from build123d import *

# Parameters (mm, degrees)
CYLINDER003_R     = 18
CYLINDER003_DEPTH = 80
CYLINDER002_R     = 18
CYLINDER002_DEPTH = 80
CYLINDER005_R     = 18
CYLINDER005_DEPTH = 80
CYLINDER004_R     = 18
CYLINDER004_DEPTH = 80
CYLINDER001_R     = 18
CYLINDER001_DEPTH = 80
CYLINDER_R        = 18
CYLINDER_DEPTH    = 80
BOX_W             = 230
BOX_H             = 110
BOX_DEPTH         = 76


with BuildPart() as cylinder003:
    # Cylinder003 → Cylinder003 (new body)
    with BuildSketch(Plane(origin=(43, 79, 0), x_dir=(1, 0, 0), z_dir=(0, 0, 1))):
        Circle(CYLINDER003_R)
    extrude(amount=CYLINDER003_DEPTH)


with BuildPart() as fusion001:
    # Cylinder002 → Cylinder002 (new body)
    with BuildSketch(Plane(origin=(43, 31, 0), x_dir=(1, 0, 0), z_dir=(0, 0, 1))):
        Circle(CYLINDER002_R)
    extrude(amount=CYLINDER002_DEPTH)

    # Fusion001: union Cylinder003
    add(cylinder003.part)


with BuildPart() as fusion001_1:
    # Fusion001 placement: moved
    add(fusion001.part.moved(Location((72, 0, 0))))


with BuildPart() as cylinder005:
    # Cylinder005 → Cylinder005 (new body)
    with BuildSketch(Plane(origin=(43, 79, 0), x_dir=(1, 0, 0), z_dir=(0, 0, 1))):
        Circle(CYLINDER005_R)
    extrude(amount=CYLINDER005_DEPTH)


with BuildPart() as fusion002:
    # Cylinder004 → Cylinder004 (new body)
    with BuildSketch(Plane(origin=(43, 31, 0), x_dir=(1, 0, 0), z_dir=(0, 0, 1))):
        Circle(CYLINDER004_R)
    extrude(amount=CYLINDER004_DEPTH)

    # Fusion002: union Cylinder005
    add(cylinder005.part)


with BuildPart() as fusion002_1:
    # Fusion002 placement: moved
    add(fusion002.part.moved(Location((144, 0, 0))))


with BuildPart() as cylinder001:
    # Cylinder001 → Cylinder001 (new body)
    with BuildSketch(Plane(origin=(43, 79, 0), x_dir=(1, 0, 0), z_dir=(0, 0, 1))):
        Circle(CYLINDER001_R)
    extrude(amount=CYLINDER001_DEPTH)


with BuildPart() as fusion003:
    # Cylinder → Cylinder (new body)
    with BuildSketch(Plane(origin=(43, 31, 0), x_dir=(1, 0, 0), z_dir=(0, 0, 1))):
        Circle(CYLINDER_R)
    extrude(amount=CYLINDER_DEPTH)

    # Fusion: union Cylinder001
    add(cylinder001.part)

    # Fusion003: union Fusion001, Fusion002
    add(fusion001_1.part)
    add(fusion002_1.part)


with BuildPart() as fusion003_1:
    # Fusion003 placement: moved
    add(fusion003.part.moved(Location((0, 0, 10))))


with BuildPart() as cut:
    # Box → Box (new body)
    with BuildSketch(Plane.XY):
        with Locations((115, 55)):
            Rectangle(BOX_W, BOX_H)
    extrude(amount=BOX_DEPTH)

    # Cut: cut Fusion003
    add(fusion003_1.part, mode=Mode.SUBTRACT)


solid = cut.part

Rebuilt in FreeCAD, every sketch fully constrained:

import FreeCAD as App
import Part
import Sketcher
from FreeCAD import Vector
Q = App.Units.Quantity

doc = App.newDocument("Part")
body = doc.addObject("PartDesign::Body", "Body")

sketch1 = body.newObject("Sketcher::SketchObject", "Sketch")
sketch1.AttachmentSupport = (doc.getObject("XY_Plane"), [""])
sketch1.MapMode = "FlatFace"
sketch1.addGeometry(Part.Circle(Vector(43, 79, 0), Vector(0, 0, 1), 18), False)
sketch1.addConstraint([
    Sketcher.Constraint("Diameter", 0, Q("36 mm")),
    Sketcher.Constraint("DistanceX", -1, 1, 0, 3, Q("43 mm")),
    Sketcher.Constraint("DistanceY", -1, 1, 0, 3, Q("79 mm")),
])
pad1 = body.newObject("PartDesign::Pad", "Pad")
pad1.Profile = sketch1
pad1.Length = 80
body2 = doc.addObject("PartDesign::Body", "Body001")
body2.AllowCompound = True

sketch2 = body2.newObject("Sketcher::SketchObject", "Sketch001")
sketch2.AttachmentSupport = (doc.getObject("XY_Plane001"), [""])
sketch2.MapMode = "FlatFace"
sketch2.addGeometry(Part.Circle(Vector(43, 31, 0), Vector(0, 0, 1), 18), False)
sketch2.addConstraint([
    Sketcher.Constraint("Diameter", 0, Q("36 mm")),
    Sketcher.Constraint("DistanceX", -1, 1, 0, 3, Q("43 mm")),
    Sketcher.Constraint("DistanceY", -1, 1, 0, 3, Q("31 mm")),
])
pad2 = body2.newObject("PartDesign::Pad", "Pad001")
pad2.Profile = sketch2
pad2.Length = 80
doc.recompute()

boolean = body2.newObject("PartDesign::Boolean", "Boolean")
boolean.Type = "Fuse"
boolean.addObjects([body])
body3 = doc.addObject("PartDesign::Body", "Body002")
body3.AllowCompound = True
doc.recompute()

body2.Placement = App.Placement(Vector(72, 0, 0), App.Rotation(Vector(0, 0, 1), 0))
boolean2 = body3.newObject("PartDesign::Boolean", "Boolean001")
boolean2.Type = "Fuse"
boolean2.addObjects([body2])
body4 = doc.addObject("PartDesign::Body", "Body003")

sketch3 = body4.newObject("Sketcher::SketchObject", "Sketch002")
sketch3.AttachmentSupport = (doc.getObject("XY_Plane003"), [""])
sketch3.MapMode = "FlatFace"
sketch3.addGeometry(Part.Circle(Vector(43, 79, 0), Vector(0, 0, 1), 18), False)
sketch3.addConstraint([
    Sketcher.Constraint("Diameter", 0, Q("36 mm")),
    Sketcher.Constraint("DistanceX", -1, 1, 0, 3, Q("43 mm")),
    Sketcher.Constraint("DistanceY", -1, 1, 0, 3, Q("79 mm")),
])
pad3 = body4.newObject("PartDesign::Pad", "Pad002")
pad3.Profile = sketch3
pad3.Length = 80
body5 = doc.addObject("PartDesign::Body", "Body004")
body5.AllowCompound = True

sketch4 = body5.newObject("Sketcher::SketchObject", "Sketch003")
sketch4.AttachmentSupport = (doc.getObject("XY_Plane004"), [""])
sketch4.MapMode = "FlatFace"
sketch4.addGeometry(Part.Circle(Vector(43, 31, 0), Vector(0, 0, 1), 18), False)
sketch4.addConstraint([
    Sketcher.Constraint("Diameter", 0, Q("36 mm")),
    Sketcher.Constraint("DistanceX", -1, 1, 0, 3, Q("43 mm")),
    Sketcher.Constraint("DistanceY", -1, 1, 0, 3, Q("31 mm")),
])
pad4 = body5.newObject("PartDesign::Pad", "Pad003")
pad4.Profile = sketch4
pad4.Length = 80
doc.recompute()

boolean3 = body5.newObject("PartDesign::Boolean", "Boolean002")
boolean3.Type = "Fuse"
boolean3.addObjects([body4])
body6 = doc.addObject("PartDesign::Body", "Body005")
body6.AllowCompound = True
doc.recompute()

body5.Placement = App.Placement(Vector(144, 0, 0), App.Rotation(Vector(0, 0, 1), 0))
boolean4 = body6.newObject("PartDesign::Boolean", "Boolean003")
boolean4.Type = "Fuse"
boolean4.addObjects([body5])
body7 = doc.addObject("PartDesign::Body", "Body006")

sketch5 = body7.newObject("Sketcher::SketchObject", "Sketch004")
sketch5.AttachmentSupport = (doc.getObject("XY_Plane006"), [""])
sketch5.MapMode = "FlatFace"
sketch5.addGeometry(Part.Circle(Vector(43, 79, 0), Vector(0, 0, 1), 18), False)
sketch5.addConstraint([
    Sketcher.Constraint("Diameter", 0, Q("36 mm")),
    Sketcher.Constraint("DistanceX", -1, 1, 0, 3, Q("43 mm")),
    Sketcher.Constraint("DistanceY", -1, 1, 0, 3, Q("79 mm")),
])
pad5 = body7.newObject("PartDesign::Pad", "Pad004")
pad5.Profile = sketch5
pad5.Length = 80
body8 = doc.addObject("PartDesign::Body", "Body007")
body8.AllowCompound = True

sketch6 = body8.newObject("Sketcher::SketchObject", "Sketch005")
sketch6.AttachmentSupport = (doc.getObject("XY_Plane007"), [""])
sketch6.MapMode = "FlatFace"
sketch6.addGeometry(Part.Circle(Vector(43, 31, 0), Vector(0, 0, 1), 18), False)
sketch6.addConstraint([
    Sketcher.Constraint("Diameter", 0, Q("36 mm")),
    Sketcher.Constraint("DistanceX", -1, 1, 0, 3, Q("43 mm")),
    Sketcher.Constraint("DistanceY", -1, 1, 0, 3, Q("31 mm")),
])
pad6 = body8.newObject("PartDesign::Pad", "Pad005")
pad6.Profile = sketch6
pad6.Length = 80
doc.recompute()

boolean5 = body8.newObject("PartDesign::Boolean", "Boolean004")
boolean5.Type = "Fuse"
boolean5.addObjects([body7])
doc.recompute()

boolean6 = body8.newObject("PartDesign::Boolean", "Boolean005")
boolean6.Type = "Fuse"
boolean6.addObjects([body3])
doc.recompute()

boolean7 = body8.newObject("PartDesign::Boolean", "Boolean006")
boolean7.Type = "Fuse"
boolean7.addObjects([body6])
body9 = doc.addObject("PartDesign::Body", "Body008")
body9.AllowCompound = True
doc.recompute()

body8.Placement = App.Placement(Vector(0, 0, 10), App.Rotation(Vector(0, 0, 1), 0))
boolean8 = body9.newObject("PartDesign::Boolean", "Boolean007")
boolean8.Type = "Fuse"
boolean8.addObjects([body8])
body10 = doc.addObject("PartDesign::Body", "Body009")

sketch7 = body10.newObject("Sketcher::SketchObject", "Sketch006")
sketch7.AttachmentSupport = (doc.getObject("XY_Plane009"), [""])
sketch7.MapMode = "FlatFace"
sketch7.addGeometry([
    Part.LineSegment(Vector(0, 110, 0), Vector(0, 0, 0)),
    Part.LineSegment(Vector(0, 0, 0), Vector(230, 0, 0)),
    Part.LineSegment(Vector(230, 0, 0), Vector(230, 110, 0)),
    Part.LineSegment(Vector(230, 110, 0), Vector(0, 110, 0)),
], False)
sketch7.addConstraint([
    Sketcher.Constraint("Coincident", 0, 2, 1, 1),
    Sketcher.Constraint("Coincident", 1, 2, 2, 1),
    Sketcher.Constraint("Coincident", 2, 2, 3, 1),
    Sketcher.Constraint("Coincident", 3, 2, 0, 1),
    Sketcher.Constraint("Vertical", 0),
    Sketcher.Constraint("Horizontal", 1),
    Sketcher.Constraint("Vertical", 2),
    Sketcher.Constraint("Horizontal", 3),
    Sketcher.Constraint("Coincident", 0, 2, -1, 1),
    Sketcher.Constraint("DistanceX", 1, 1, 1, 2, Q("230 mm")),
    Sketcher.Constraint("DistanceY", 0, 2, 0, 1, Q("110 mm")),
])
pad7 = body10.newObject("PartDesign::Pad", "Pad006")
pad7.Profile = sketch7
pad7.Length = 76
doc.recompute()

boolean9 = body10.newObject("PartDesign::Boolean", "Boolean008")
boolean9.Type = "Cut"
boolean9.addObjects([body9])

doc.recompute()
